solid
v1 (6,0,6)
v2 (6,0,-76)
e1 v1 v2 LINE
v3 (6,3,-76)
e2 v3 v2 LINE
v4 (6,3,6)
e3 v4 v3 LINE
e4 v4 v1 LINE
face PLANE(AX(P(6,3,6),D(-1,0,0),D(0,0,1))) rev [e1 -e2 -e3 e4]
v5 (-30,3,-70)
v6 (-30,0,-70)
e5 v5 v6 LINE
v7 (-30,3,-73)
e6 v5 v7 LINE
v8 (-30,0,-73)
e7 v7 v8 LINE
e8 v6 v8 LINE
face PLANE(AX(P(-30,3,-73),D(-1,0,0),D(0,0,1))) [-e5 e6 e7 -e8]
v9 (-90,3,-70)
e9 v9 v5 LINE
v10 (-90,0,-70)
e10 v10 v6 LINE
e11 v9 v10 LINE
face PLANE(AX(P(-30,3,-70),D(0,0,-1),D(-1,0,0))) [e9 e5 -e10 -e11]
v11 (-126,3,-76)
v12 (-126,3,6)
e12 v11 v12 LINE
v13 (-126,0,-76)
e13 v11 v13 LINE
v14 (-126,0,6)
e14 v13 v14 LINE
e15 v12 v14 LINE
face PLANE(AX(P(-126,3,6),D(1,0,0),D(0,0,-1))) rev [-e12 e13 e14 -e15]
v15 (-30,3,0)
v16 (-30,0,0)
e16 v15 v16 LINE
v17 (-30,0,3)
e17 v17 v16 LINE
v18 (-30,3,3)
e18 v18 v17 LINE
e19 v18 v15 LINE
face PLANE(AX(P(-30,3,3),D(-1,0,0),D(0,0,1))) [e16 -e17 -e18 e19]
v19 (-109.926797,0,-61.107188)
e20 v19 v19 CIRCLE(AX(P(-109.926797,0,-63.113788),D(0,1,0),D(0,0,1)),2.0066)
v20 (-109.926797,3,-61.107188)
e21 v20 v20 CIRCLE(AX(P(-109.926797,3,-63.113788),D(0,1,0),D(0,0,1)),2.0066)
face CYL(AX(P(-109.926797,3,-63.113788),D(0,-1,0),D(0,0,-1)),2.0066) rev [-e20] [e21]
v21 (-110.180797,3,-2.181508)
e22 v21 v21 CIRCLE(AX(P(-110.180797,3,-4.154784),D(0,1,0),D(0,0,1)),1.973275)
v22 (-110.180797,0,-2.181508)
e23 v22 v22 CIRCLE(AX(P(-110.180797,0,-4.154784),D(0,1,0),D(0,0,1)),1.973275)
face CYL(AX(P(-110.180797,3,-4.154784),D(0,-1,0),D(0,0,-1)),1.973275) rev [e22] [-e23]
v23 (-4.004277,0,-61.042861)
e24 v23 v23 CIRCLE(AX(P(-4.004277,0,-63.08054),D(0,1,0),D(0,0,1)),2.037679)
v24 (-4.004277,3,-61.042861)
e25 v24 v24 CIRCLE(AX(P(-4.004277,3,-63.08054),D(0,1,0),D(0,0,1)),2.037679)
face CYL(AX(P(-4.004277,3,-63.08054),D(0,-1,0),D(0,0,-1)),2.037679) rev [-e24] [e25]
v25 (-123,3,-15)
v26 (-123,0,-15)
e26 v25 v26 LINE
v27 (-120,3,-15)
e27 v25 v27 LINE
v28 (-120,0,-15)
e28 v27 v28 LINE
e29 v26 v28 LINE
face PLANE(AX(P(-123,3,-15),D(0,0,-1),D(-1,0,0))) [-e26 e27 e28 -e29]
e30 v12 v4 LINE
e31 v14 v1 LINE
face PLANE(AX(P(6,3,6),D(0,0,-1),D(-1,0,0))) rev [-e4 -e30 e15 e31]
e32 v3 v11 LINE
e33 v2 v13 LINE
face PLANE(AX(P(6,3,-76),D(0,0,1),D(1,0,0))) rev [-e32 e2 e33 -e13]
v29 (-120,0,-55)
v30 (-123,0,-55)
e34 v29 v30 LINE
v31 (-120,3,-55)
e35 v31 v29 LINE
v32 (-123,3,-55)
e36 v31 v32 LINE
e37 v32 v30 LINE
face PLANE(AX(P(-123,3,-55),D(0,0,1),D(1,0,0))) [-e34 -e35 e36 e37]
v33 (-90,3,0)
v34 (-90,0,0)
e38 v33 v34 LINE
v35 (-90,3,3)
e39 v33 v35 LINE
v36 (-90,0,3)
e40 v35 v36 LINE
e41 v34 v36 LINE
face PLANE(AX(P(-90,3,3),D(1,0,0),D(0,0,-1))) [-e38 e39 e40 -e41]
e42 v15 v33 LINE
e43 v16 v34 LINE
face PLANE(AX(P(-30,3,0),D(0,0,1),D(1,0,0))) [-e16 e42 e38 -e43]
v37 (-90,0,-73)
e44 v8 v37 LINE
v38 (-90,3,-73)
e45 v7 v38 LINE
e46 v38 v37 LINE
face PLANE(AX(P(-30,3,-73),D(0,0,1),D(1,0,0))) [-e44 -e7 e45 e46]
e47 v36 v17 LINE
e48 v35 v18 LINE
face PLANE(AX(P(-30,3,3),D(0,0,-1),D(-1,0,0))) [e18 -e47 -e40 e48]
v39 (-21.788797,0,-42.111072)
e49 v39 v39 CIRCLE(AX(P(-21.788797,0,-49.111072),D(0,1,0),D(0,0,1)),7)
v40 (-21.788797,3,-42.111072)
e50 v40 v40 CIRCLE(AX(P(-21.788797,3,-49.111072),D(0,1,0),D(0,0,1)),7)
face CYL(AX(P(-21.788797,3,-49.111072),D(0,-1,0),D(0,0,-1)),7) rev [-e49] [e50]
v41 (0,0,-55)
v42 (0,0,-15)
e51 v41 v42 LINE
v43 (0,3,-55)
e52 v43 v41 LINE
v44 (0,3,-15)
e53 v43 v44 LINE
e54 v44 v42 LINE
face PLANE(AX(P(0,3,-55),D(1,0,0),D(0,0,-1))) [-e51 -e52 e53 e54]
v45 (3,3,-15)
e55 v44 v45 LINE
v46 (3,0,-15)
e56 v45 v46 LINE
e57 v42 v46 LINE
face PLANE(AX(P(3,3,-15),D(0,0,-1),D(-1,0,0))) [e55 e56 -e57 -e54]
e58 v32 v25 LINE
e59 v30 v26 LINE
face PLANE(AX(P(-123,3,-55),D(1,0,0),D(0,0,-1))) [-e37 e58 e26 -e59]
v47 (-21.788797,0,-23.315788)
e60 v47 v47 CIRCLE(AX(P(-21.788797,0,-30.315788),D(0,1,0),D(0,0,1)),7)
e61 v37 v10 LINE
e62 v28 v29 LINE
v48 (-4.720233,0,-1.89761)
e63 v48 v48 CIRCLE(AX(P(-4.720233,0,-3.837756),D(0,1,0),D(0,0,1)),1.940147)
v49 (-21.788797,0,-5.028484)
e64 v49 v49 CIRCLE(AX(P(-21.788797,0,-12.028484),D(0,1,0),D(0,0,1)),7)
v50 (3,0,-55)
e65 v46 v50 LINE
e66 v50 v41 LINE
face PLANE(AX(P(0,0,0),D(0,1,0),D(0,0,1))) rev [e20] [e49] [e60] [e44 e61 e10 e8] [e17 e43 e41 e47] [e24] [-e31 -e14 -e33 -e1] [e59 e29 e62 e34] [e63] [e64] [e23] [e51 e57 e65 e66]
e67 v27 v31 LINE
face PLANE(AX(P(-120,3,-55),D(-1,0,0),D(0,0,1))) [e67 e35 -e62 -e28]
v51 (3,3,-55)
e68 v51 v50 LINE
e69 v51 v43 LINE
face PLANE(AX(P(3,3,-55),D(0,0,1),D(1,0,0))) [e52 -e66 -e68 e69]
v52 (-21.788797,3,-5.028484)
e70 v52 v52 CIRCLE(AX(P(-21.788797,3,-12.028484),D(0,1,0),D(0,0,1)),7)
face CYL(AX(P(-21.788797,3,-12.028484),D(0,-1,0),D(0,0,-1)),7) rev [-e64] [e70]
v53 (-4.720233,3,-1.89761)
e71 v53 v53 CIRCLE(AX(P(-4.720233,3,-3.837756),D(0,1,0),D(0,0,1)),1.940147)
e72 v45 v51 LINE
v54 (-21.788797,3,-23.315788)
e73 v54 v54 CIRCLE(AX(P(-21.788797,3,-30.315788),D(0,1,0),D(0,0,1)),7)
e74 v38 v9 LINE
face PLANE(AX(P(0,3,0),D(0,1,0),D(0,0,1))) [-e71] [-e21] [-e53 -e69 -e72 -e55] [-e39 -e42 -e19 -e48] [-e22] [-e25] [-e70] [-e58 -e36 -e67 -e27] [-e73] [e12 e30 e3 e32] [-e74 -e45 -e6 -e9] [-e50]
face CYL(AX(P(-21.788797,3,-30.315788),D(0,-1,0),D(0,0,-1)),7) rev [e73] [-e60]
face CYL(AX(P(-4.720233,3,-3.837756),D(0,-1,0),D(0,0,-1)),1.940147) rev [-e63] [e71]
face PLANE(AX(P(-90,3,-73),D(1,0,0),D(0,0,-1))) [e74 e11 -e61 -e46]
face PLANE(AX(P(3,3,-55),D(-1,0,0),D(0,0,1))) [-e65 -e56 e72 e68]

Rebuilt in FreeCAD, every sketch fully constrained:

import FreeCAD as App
import Part
import Sketcher
from FreeCAD import Vector

doc = App.newDocument("Part")
body = doc.addObject("PartDesign::Body", "Body")

# Sketch on XZ plane
sketch1 = doc.addObject("Sketcher::SketchObject", "Sketch")
body.addObject(sketch1)
sketch1.AttachmentSupport = (doc.XZ_Plane, [""])
sketch1.MapMode = "FlatFace"
sketch1.addGeometry(Part.LineSegment(Vector(-126, -76, 0), Vector(-126, 6, 0)), False)
sketch1.addGeometry(Part.LineSegment(Vector(-126, 6, 0), Vector(6, 6, 0)), False)
sketch1.addGeometry(Part.LineSegment(Vector(6, 6, 0), Vector(6, -76, 0)), False)
sketch1.addGeometry(Part.LineSegment(Vector(6, -76, 0), Vector(-126, -76, 0)), False)
sketch1.addGeometry(Part.Circle(Vector(-110.180797, -4.154784, 0), Vector(0, 0, 1), 1.973275), False)
sketch1.addGeometry(Part.LineSegment(Vector(-30, 3, 0), Vector(-90, 3, 0)), False)
sketch1.addGeometry(Part.LineSegment(Vector(-90, 3, 0), Vector(-90, 0, 0)), False)
sketch1.addGeometry(Part.LineSegment(Vector(-90, 0, 0), Vector(-30, 0, 0)), False)
sketch1.addGeometry(Part.LineSegment(Vector(-30, 0, 0), Vector(-30, 3, 0)), False)
sketch1.addGeometry(Part.Circle(Vector(-4.720233, -3.837756, 0), Vector(0, 0, 1), 1.940147), False)
sketch1.addGeometry(Part.Circle(Vector(-21.788797, -12.028484, 0), Vector(0, 0, 1), 7), False)
sketch1.addGeometry(Part.Circle(Vector(-21.788797, -30.315788, 0), Vector(0, 0, 1), 7), False)
sketch1.addGeometry(Part.LineSegment(Vector(-120, -15, 0), Vector(-123, -15, 0)), False)
sketch1.addGeometry(Part.LineSegment(Vector(-123, -15, 0), Vector(-123, -55, 0)), False)
sketch1.addGeometry(Part.LineSegment(Vector(-123, -55, 0), Vector(-120, -55, 0)), False)
sketch1.addGeometry(Part.LineSegment(Vector(-120, -55, 0), Vector(-120, -15, 0)), False)
sketch1.addGeometry(Part.Circle(Vector(-109.926797, -63.113788, 0), Vector(0, 0, 1), 2.0066), False)
sketch1.addGeometry(Part.LineSegment(Vector(3, -15, 0), Vector(0, -15, 0)), False)
sketch1.addGeometry(Part.LineSegment(Vector(0, -15, 0), Vector(0, -55, 0)), False)
sketch1.addGeometry(Part.LineSegment(Vector(0, -55, 0), Vector(3, -55, 0)), False)
sketch1.addGeometry(Part.LineSegment(Vector(3, -55, 0), Vector(3, -15, 0)), False)
sketch1.addGeometry(Part.Circle(Vector(-21.788797, -49.111072, 0), Vector(0, 0, 1), 7), False)
sketch1.addGeometry(Part.LineSegment(Vector(-30, -70, 0), Vector(-90, -70, 0)), False)
sketch1.addGeometry(Part.LineSegment(Vector(-90, -70, 0), Vector(-90, -73, 0)), False)
sketch1.addGeometry(Part.LineSegment(Vector(-90, -73, 0), Vector(-30, -73, 0)), False)
sketch1.addGeometry(Part.LineSegment(Vector(-30, -73, 0), Vector(-30, -70, 0)), False)
sketch1.addGeometry(Part.Circle(Vector(-4.004277, -63.08054, 0), Vector(0, 0, 1), 2.037679), False)
sketch1.addConstraint(Sketcher.Constraint("Coincident", 0, 2, 1, 1))
sketch1.addConstraint(Sketcher.Constraint("Coincident", 1, 2, 2, 1))
sketch1.addConstraint(Sketcher.Constraint("Coincident", 2, 2, 3, 1))
sketch1.addConstraint(Sketcher.Constraint("Coincident", 3, 2, 0, 1))
sketch1.addConstraint(Sketcher.Constraint("Coincident", 5, 2, 6, 1))
sketch1.addConstraint(Sketcher.Constraint("Coincident", 6, 2, 7, 1))
sketch1.addConstraint(Sketcher.Constraint("Coincident", 7, 2, 8, 1))
sketch1.addConstraint(Sketcher.Constraint("Coincident", 8, 2, 5, 1))
sketch1.addConstraint(Sketcher.Constraint("Coincident", 12, 2, 13, 1))
sketch1.addConstraint(Sketcher.Constraint("Coincident", 13, 2, 14, 1))
sketch1.addConstraint(Sketcher.Constraint("Coincident", 14, 2, 15, 1))
sketch1.addConstraint(Sketcher.Constraint("Coincident", 15, 2, 12, 1))
sketch1.addConstraint(Sketcher.Constraint("Coincident", 17, 2, 18, 1))
sketch1.addConstraint(Sketcher.Constraint("Coincident", 18, 2, 19, 1))
sketch1.addConstraint(Sketcher.Constraint("Coincident", 19, 2, 20, 1))
sketch1.addConstraint(Sketcher.Constraint("Coincident", 20, 2, 17, 1))
sketch1.addConstraint(Sketcher.Constraint("Coincident", 22, 2, 23, 1))
sketch1.addConstraint(Sketcher.Constraint("Coincident", 23, 2, 24, 1))
sketch1.addConstraint(Sketcher.Constraint("Coincident", 24, 2, 25, 1))
sketch1.addConstraint(Sketcher.Constraint("Coincident", 25, 2, 22, 1))
sketch1.addConstraint(Sketcher.Constraint("Vertical", 0))
sketch1.addConstraint(Sketcher.Constraint("Horizontal", 1))
sketch1.addConstraint(Sketcher.Constraint("Vertical", 2))
sketch1.addConstraint(Sketcher.Constraint("Horizontal", 3))
sketch1.addConstraint(Sketcher.Constraint("Horizontal", 5))
sketch1.addConstraint(Sketcher.Constraint("Vertical", 6))
sketch1.addConstraint(Sketcher.Constraint("Horizontal", 7))
sketch1.addConstraint(Sketcher.Constraint("Vertical", 8))
sketch1.addConstraint(Sketcher.Constraint("Horizontal", 12))
sketch1.addConstraint(Sketcher.Constraint("Vertical", 13))
sketch1.addConstraint(Sketcher.Constraint("Horizontal", 14))
sketch1.addConstraint(Sketcher.Constraint("Vertical", 15))
sketch1.addConstraint(Sketcher.Constraint("Horizontal", 17))
sketch1.addConstraint(Sketcher.Constraint("Vertical", 18))
sketch1.addConstraint(Sketcher.Constraint("Horizontal", 19))
sketch1.addConstraint(Sketcher.Constraint("Vertical", 20))
sketch1.addConstraint(Sketcher.Constraint("Horizontal", 22))
sketch1.addConstraint(Sketcher.Constraint("Vertical", 23))
sketch1.addConstraint(Sketcher.Constraint("Horizontal", 24))
sketch1.addConstraint(Sketcher.Constraint("Vertical", 25))
sketch1.addConstraint(Sketcher.Constraint("Equal", 10, 11))
sketch1.addConstraint(Sketcher.Constraint("Equal", 11, 21))
sketch1.addConstraint(Sketcher.Constraint("PointOnObject", 6, 2, -1))
sketch1.addConstraint(Sketcher.Constraint("PointOnObject", 17, 2, -2))
sketch1.addConstraint(Sketcher.Constraint("Horizontal", 15, 2, 17, 2))
sketch1.addConstraint(Sketcher.Constraint("Horizontal", 14, 2, 18, 2))
sketch1.addConstraint(Sketcher.Constraint("Vertical", 10, 3, 11, 3))
sketch1.addConstraint(Sketcher.Constraint("Vertical", 11, 3, 21, 3))
sketch1.addConstraint(Sketcher.Constraint("Vertical", 6, 2, 22, 2))
sketch1.addConstraint(Sketcher.Constraint("Vertical", 8, 2, 24, 2))
sketch1.addConstraint(Sketcher.Constraint("Equal", 14, 17))
sketch1.addConstraint(Sketcher.Constraint("Equal", 19, 6))
sketch1.addConstraint(Sketcher.Constraint("Equal", 8, 23))
sketch1.addConstraint(Sketcher.Constraint("Diameter", 10, 14.0))
sketch1.addConstraint(Sketcher.Constraint("DistanceX", 1, 1, 1, 2, 132.0))
sketch1.addConstraint(Sketcher.Constraint("DistanceX", 5, 2, 5, 1, 60.0))
sketch1.addConstraint(Sketcher.Constraint("DistanceX", 12, 2, 12, 1, 3.0))
sketch1.addConstraint(Sketcher.Constraint("DistanceY", 0, 1, 0, 2, 82.0))
sketch1.addConstraint(Sketcher.Constraint("DistanceY", 13, 2, 13, 1, 40.0))
sketch1.addConstraint(Sketcher.Constraint("DistanceX", 0, 2, -1, 1, 126.0))
sketch1.addConstraint(Sketcher.Constraint("DistanceY", -1, 1, 0, 2, 6.0))
sketch1.addConstraint(Sketcher.Constraint("DistanceX", 5, 2, -1, 1, 90.0))
sketch1.addConstraint(Sketcher.Constraint("DistanceX", 12, 2, -1, 1, 123.0))
sketch1.addConstraint(Sketcher.Constraint("DistanceY", 12, 2, -1, 1, 15.0))
sketch1.addConstraint(Sketcher.Constraint("DistanceY", 22, 2, -1, 1, 70.0))
sketch1.addConstraint(Sketcher.Constraint("Diameter", 16, 4.0132))
sketch1.addConstraint(Sketcher.Constraint("Diameter", 4, 3.946551))
sketch1.addConstraint(Sketcher.Constraint("Diameter", 26, 4.075358))
sketch1.addConstraint(Sketcher.Constraint("Diameter", 9, 3.880293))
sketch1.addConstraint(Sketcher.Constraint("DistanceX", 4, 3, 10, 3, 88.392))
sketch1.addConstraint(Sketcher.Constraint("DistanceX", 4, 3, 16, 3, 0.254))
sketch1.addConstraint(Sketcher.Constraint("DistanceY", 16, 3, 11, 3, 32.798))
sketch1.addConstraint(Sketcher.Constraint("DistanceY", 10, 3, 4, 3, 7.8737))
sketch1.addConstraint(Sketcher.Constraint("DistanceY", 16, 3, -1, 1, 63.113788))
sketch1.addConstraint(Sketcher.Constraint("DistanceY", 26, 3, -1, 1, 63.08054))
sketch1.addConstraint(Sketcher.Constraint("DistanceY", 11, 3, 9, 3, 26.478031))
sketch1.addConstraint(Sketcher.Constraint("DistanceY", 21, 3, 4, 3, 44.956288))
sketch1.addConstraint(Sketcher.Constraint("DistanceX", 21, 3, 26, 3, 17.78452))
sketch1.addConstraint(Sketcher.Constraint("DistanceY", 26, 3, 21, 3, 13.969468))
sketch1.addConstraint(Sketcher.Constraint("DistanceX", 4, 3, -1, 1, 110.180797))
sketch1.addConstraint(Sketcher.Constraint("DistanceX", 9, 3, -1, 1, 4.720233))
pad1 = doc.addObject("PartDesign::Pad", "Pad")
body.addObject(pad1)
pad1.Profile = sketch1
pad1.Length = 3
pad1.Reversed = True

doc.recompute()
